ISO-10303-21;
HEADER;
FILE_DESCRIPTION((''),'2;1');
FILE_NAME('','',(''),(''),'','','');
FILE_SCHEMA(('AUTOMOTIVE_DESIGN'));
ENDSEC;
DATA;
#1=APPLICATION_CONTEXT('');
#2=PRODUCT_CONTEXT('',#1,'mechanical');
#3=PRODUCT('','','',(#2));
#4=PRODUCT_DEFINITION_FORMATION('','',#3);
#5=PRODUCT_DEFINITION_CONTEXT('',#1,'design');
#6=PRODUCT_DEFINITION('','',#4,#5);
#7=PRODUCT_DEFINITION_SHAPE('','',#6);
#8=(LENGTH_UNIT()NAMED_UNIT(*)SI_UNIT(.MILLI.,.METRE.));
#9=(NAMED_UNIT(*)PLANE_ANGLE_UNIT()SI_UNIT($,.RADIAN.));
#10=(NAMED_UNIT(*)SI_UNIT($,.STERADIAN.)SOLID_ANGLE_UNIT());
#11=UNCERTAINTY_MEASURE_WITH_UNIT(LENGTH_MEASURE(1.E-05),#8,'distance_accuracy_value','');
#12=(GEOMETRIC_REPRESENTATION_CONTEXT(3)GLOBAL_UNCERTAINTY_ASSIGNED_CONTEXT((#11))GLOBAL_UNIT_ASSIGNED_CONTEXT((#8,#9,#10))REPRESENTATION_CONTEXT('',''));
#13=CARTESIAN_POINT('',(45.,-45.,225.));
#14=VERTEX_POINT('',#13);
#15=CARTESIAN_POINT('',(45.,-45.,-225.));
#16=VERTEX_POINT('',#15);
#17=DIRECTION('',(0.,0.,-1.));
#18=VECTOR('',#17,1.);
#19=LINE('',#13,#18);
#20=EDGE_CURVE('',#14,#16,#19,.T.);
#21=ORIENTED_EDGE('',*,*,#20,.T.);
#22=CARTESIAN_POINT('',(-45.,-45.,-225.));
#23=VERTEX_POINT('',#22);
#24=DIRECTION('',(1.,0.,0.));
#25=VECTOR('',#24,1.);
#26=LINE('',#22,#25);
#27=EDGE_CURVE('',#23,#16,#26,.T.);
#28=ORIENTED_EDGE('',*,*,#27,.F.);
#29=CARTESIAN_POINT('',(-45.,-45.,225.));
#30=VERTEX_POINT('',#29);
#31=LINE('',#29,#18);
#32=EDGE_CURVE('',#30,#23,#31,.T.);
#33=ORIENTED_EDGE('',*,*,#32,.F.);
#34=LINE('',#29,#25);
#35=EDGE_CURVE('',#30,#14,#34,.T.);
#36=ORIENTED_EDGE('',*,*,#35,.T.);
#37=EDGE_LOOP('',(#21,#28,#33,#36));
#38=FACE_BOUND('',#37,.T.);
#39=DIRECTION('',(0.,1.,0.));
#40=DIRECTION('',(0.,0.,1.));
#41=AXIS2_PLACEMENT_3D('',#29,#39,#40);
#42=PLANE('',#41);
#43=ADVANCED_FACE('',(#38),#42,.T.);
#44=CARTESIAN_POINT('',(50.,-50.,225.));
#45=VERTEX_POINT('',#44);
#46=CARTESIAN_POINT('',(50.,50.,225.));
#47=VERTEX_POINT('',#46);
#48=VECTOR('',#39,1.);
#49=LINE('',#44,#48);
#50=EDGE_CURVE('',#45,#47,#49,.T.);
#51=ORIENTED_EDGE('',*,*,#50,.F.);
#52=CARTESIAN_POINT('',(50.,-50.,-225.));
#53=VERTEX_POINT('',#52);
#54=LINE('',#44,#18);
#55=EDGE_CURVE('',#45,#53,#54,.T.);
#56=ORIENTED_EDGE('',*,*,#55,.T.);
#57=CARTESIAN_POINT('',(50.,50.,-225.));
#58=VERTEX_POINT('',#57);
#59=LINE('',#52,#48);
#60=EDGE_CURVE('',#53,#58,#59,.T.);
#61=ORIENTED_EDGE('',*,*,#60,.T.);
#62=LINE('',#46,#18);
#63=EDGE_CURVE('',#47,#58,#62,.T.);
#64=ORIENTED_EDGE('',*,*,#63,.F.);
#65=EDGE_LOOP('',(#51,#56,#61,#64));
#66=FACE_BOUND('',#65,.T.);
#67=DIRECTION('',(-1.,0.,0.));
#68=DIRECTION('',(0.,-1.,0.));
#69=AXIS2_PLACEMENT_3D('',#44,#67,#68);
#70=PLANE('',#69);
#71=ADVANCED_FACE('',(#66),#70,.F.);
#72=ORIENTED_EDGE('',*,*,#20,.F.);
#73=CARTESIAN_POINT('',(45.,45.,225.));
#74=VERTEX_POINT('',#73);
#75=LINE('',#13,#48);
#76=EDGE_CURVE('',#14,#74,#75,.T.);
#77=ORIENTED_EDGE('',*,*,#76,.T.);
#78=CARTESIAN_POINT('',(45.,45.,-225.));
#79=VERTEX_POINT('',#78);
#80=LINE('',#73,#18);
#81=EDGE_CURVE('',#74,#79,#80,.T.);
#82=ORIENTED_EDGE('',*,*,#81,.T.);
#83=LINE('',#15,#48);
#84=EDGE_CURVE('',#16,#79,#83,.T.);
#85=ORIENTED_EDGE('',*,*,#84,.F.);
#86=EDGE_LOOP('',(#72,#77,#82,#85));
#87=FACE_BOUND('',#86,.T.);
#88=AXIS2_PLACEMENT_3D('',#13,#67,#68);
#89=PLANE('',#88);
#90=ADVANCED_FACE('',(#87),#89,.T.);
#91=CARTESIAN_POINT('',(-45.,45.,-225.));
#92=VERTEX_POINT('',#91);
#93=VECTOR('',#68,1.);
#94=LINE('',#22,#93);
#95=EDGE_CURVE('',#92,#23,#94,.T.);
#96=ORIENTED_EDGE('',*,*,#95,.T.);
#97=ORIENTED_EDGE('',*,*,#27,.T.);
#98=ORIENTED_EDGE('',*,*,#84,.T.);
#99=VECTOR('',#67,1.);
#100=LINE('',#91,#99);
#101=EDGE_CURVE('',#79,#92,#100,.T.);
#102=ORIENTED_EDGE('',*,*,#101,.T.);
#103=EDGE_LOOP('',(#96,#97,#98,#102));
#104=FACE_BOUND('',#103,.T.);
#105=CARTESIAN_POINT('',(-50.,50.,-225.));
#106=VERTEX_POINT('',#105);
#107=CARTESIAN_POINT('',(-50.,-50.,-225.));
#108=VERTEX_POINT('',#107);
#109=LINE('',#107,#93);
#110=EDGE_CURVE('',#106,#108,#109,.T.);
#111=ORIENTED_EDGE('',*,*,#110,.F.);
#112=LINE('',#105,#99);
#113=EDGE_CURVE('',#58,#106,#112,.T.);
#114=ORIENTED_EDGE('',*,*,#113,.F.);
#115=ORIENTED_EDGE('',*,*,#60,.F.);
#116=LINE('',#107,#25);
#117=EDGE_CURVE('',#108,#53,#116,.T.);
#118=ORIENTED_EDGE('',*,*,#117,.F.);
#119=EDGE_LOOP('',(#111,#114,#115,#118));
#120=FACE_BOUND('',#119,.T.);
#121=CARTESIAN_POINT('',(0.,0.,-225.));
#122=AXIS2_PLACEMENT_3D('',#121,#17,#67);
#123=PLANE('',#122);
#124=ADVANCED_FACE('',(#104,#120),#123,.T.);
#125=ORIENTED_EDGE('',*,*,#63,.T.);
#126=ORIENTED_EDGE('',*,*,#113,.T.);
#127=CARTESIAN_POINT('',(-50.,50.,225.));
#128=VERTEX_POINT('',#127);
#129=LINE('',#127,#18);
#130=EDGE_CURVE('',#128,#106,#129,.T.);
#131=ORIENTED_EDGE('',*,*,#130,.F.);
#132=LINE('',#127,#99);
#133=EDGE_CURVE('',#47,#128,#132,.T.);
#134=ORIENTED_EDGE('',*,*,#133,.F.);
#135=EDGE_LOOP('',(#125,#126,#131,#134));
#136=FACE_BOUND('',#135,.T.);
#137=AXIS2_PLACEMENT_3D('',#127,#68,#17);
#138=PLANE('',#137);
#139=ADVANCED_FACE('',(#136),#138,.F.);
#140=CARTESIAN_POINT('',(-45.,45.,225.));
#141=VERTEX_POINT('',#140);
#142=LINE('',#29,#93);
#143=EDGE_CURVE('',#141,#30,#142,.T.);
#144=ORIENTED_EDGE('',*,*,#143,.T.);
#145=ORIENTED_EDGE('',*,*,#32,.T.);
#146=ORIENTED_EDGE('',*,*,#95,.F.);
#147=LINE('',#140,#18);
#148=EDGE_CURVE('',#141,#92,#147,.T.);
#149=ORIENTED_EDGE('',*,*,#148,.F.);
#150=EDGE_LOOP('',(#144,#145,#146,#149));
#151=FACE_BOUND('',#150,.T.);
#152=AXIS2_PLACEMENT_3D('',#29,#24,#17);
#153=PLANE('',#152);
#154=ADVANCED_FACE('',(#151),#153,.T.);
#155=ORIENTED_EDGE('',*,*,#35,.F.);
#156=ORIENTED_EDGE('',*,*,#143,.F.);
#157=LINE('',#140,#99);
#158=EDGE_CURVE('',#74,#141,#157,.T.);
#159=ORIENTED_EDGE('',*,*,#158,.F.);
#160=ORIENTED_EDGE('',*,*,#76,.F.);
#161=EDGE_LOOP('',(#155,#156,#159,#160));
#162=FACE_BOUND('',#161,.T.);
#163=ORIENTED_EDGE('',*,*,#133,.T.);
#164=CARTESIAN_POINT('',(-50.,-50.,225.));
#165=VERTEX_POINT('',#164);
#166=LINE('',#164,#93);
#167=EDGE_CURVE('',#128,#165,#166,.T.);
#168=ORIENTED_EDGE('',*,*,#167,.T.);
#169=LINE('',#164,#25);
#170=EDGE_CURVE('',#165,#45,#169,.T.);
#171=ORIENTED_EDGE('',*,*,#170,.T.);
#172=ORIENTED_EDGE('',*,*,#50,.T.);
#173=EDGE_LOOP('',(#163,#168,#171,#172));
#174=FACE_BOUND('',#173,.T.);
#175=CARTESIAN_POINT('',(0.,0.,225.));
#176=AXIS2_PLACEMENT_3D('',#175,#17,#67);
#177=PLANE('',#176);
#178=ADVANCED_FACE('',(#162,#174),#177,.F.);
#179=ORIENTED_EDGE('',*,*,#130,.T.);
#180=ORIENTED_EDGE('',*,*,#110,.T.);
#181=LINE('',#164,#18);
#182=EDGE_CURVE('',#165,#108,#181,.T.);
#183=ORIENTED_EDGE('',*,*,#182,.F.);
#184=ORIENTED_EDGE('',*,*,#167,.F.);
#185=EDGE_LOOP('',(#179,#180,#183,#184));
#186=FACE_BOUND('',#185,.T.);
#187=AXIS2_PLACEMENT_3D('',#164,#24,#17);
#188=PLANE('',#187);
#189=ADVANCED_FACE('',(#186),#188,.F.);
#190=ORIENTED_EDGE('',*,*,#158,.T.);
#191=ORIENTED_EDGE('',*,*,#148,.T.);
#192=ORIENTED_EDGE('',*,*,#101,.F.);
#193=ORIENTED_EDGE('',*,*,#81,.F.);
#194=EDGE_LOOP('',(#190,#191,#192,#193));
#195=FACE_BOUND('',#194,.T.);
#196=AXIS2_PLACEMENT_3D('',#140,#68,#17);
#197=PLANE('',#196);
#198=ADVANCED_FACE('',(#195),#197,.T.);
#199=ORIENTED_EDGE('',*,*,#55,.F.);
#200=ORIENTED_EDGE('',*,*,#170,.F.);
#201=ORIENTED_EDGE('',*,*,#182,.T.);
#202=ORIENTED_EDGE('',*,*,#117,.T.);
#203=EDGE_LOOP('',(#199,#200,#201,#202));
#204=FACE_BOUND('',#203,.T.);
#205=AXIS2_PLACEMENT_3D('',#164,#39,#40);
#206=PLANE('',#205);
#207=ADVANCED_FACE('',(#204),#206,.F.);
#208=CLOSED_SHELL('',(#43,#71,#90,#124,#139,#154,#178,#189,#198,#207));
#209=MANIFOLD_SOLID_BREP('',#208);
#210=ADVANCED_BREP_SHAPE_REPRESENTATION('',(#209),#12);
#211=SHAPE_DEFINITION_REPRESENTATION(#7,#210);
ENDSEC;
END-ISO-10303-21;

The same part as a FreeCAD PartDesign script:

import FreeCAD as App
import Part
import Sketcher
from FreeCAD import Vector


def add_polygon(sketch, points):
    """Adds a closed chain of lines whose ends are joined by coincident constraints."""
    first, n = sketch.GeometryCount, len(points)
    for a, b in zip(points, points[1:] + points[:1]):
        sketch.addGeometry(Part.LineSegment(App.Vector(*a, 0), App.Vector(*b, 0)), False)
    for i in range(n):
        sketch.addConstraint(Sketcher.Constraint("Coincident", first + i, 2, first + (i + 1) % n, 1))

doc = App.newDocument("Part")
body = doc.addObject("PartDesign::Body", "Body")

# Sketch on XY plane
sketch1 = body.newObject("Sketcher::SketchObject", "Sketch")
sketch1.AttachmentSupport = (doc.getObject("XY_Plane"), [""])
sketch1.MapMode = "FlatFace"
add_polygon(sketch1, [(-50, 50), (-50, -50), (50, -50), (50, 50)])  # lines 0-3
add_polygon(sketch1, [(45, -45), (-45, -45), (-45, 45), (45, 45)])  # lines 4-7
sketch1.addConstraint([
    Sketcher.Constraint("Vertical", 0),
    Sketcher.Constraint("Horizontal", 1),
    Sketcher.Constraint("Vertical", 2),
    Sketcher.Constraint("Horizontal", 3),
    Sketcher.Constraint("Horizontal", 4),
    Sketcher.Constraint("Vertical", 5),
    Sketcher.Constraint("Horizontal", 6),
    Sketcher.Constraint("Vertical", 7),
    Sketcher.Constraint("Symmetric", 0, 2, 2, 2, -1, 1),
    Sketcher.Constraint("Symmetric", 4, 2, 6, 2, -1, 1),
    Sketcher.Constraint("Equal", 3, 0),
    Sketcher.Constraint("Equal", 6, 5),
    Sketcher.Constraint("DistanceX", 1, 1, 1, 2, 100.0),
    Sketcher.Constraint("DistanceX", 4, 2, 4, 1, 90.0),
])
pad1 = body.newObject("PartDesign::Pad", "Pad")
pad1.Profile = sketch1
pad1.Length = 450
pad1.Midplane = True

doc.recompute()
